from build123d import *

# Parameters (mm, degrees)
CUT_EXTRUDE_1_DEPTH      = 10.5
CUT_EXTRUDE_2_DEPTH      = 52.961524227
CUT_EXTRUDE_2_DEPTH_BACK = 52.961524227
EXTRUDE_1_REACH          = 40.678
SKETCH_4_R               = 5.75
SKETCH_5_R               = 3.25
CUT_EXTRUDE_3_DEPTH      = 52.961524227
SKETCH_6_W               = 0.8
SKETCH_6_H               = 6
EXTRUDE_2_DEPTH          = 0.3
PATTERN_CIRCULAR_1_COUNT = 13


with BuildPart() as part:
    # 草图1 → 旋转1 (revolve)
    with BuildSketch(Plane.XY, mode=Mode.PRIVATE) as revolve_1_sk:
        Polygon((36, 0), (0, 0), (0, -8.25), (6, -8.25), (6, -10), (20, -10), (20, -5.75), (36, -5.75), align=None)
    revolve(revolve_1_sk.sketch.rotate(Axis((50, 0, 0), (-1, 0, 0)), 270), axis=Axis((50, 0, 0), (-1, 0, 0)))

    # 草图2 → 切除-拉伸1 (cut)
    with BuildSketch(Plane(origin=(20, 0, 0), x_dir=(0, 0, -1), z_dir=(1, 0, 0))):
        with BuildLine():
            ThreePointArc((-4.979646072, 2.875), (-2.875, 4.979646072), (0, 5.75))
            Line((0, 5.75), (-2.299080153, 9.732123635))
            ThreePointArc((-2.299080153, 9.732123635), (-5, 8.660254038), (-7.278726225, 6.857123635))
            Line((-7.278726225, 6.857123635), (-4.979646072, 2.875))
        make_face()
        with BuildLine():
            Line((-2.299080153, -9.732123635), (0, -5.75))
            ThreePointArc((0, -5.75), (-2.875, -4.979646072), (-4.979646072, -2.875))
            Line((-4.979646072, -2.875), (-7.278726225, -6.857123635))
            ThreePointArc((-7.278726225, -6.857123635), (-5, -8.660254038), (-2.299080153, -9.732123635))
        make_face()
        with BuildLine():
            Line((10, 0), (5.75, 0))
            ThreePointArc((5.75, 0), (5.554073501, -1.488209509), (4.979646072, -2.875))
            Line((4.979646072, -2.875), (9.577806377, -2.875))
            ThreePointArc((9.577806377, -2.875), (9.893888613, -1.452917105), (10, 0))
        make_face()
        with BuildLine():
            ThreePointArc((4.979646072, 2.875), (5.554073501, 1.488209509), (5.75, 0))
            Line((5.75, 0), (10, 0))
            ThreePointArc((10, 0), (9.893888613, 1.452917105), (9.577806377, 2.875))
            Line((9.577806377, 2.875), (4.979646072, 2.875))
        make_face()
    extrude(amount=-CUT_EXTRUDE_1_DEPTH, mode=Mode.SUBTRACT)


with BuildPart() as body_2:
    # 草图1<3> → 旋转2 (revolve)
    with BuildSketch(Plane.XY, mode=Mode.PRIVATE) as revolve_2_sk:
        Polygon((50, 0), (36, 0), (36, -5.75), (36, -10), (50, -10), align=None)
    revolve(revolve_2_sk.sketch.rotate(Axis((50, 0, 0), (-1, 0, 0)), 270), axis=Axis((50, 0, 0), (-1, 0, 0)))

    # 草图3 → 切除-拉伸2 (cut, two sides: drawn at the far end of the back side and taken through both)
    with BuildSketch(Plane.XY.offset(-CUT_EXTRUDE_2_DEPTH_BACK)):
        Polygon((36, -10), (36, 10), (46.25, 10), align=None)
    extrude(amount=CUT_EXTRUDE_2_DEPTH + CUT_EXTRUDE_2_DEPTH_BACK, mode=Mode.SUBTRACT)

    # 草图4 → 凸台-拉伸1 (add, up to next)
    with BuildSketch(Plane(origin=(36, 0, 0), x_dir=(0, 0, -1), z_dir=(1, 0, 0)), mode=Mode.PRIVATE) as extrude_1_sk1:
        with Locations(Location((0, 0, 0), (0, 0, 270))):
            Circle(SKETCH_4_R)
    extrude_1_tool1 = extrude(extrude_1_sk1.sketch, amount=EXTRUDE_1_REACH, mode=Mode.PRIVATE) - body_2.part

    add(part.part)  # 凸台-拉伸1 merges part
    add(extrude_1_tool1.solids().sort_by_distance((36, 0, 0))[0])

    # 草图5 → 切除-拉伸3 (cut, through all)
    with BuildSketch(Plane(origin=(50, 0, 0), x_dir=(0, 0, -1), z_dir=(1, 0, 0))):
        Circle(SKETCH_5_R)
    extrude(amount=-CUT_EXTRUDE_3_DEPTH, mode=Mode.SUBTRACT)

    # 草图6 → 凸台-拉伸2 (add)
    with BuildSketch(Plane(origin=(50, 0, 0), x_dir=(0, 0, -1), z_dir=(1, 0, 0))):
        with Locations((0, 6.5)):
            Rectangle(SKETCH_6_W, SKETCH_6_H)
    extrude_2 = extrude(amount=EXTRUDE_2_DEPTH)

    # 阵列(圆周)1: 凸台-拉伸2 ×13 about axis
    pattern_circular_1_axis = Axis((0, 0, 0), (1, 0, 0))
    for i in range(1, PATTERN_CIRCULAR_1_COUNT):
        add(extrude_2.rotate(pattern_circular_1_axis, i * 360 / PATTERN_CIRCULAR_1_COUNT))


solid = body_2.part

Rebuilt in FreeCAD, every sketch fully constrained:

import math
import FreeCAD as App
import Part
import Sketcher
Q = App.Units.Quantity


def add_polygon(sketch, points):
    """Adds a closed chain of lines whose ends are joined by coincident constraints."""
    first, n = sketch.GeometryCount, len(points)
    for a, b in zip(points, points[1:] + points[:1]):
        sketch.addGeometry(Part.LineSegment(App.Vector(*a, 0), App.Vector(*b, 0)), False)
    for i in range(n):
        sketch.addConstraint(Sketcher.Constraint("Coincident", first + i, 2, first + (i + 1) % n, 1))

doc = App.newDocument("Part")
body = doc.addObject("PartDesign::Body", "Body")

# Sketch on XY plane
sketch1 = body.newObject("Sketcher::SketchObject", "Sketch")
sketch1.AttachmentSupport = (doc.getObject("XY_Plane"), [""])
sketch1.MapMode = "FlatFace"
add_polygon(sketch1, [(36, 0), (0, 0), (0, -8.2), (6, -8.2), (6, -10), (20, -10), (20, -5.8), (36, -5.8)])  # lines 0-7
sketch1.addConstraint([
    Sketcher.Constraint("Horizontal", 0),
    Sketcher.Constraint("Vertical", 1),
    Sketcher.Constraint("Horizontal", 2),
    Sketcher.Constraint("Vertical", 3),
    Sketcher.Constraint("Horizontal", 4),
    Sketcher.Constraint("Vertical", 5),
    Sketcher.Constraint("Horizontal", 6),
    Sketcher.Constraint("Vertical", 7),
    Sketcher.Constraint("Coincident", 0, 2, -1, 1),
    Sketcher.Constraint("DistanceX", 0, 2, 0, 1, 36.0),
    Sketcher.Constraint("DistanceX", 2, 1, 2, 2, 6.0),
    Sketcher.Constraint("DistanceX", 4, 1, 4, 2, 14.0),
    Sketcher.Constraint("DistanceY", 3, 2, -1, 1, 10.0),
    Sketcher.Constraint("DistanceY", 1, 2, 1, 1, 8.25),
    Sketcher.Constraint("DistanceY", 5, 1, 5, 2, 4.25),
])
revolution = body.newObject("PartDesign::Revolution", "Revolution")
revolution.Profile = sketch1
revolution.ReferenceAxis = (sketch1, ["H_Axis"])
revolution.Angle = 360

# Sketch on YZ plane
sketch2 = body.newObject("Sketcher::SketchObject", "Sketch001")
sketch2.AttachmentSupport = (doc.getObject("YZ_Plane"), [""])
sketch2.MapMode = "FlatFace"
sketch2.AttachmentOffset = App.Placement(App.Vector(0, 0, 20), App.Rotation())
sketch2.addGeometry([
    Part.ArcOfCircle(Part.Circle(App.Vector(0, 0, 0), App.Vector(0, 0, 1), 5.7), math.radians(0), math.radians(60)),  # 0
    Part.LineSegment(App.Vector(5.8, 0, 0), App.Vector(9.7, 2.3, 0)),  # 1
    Part.ArcOfCircle(Part.Circle(App.Vector(0, 0, 0), App.Vector(0, 0, 1), 10), math.radians(13), math.radians(47)),  # 2
    Part.LineSegment(App.Vector(6.9, 7.3, 0), App.Vector(2.9, 5, 0)),  # 3
    Part.LineSegment(App.Vector(-9.7, 2.3, 0), App.Vector(-5.8, 0, 0)),  # 4
    Part.ArcOfCircle(Part.Circle(App.Vector(0, 0, 0), App.Vector(0, 0, 1), 5.7), math.radians(120), math.radians(180)),  # 5
    Part.LineSegment(App.Vector(-2.9, 5, 0), App.Vector(-6.9, 7.3, 0)),  # 6
    Part.ArcOfCircle(Part.Circle(App.Vector(0, 0, 0), App.Vector(0, 0, 1), 10), math.radians(133), math.radians(167)),  # 7
    Part.ArcOfCircle(Part.Circle(App.Vector(0, 0, 0), App.Vector(0, 0, 1), 5.8), math.radians(-120), math.radians(-90)),  # 8
    Part.LineSegment(App.Vector(-2.9, -5, 0), App.Vector(-2.9, -9.6, 0)),  # 9
    Part.ArcOfCircle(Part.Circle(App.Vector(0, 0, 0), App.Vector(0, 0, 1), 10), math.radians(-106.71), math.radians(-90)),  # 10
    Part.ArcOfCircle(Part.Circle(App.Vector(0, 0, 0), App.Vector(0, 0, 1), 10), math.radians(-90), math.radians(-73.29)),  # 11
    Part.LineSegment(App.Vector(2.9, -9.6, 0), App.Vector(2.9, -5, 0)),  # 12
    Part.ArcOfCircle(Part.Circle(App.Vector(0, 0, 0), App.Vector(0, 0, 1), 5.8), math.radians(-90), math.radians(-60)),  # 13
], False)
sketch2.addConstraint([
    Sketcher.Constraint("Coincident", 0, 1, 1, 1),
    Sketcher.Constraint("Coincident", 1, 2, 2, 1),
    Sketcher.Constraint("Coincident", 2, 2, 3, 1),
    Sketcher.Constraint("Coincident", 3, 2, 0, 2),
    Sketcher.Constraint("Coincident", 4, 2, 5, 2),
    Sketcher.Constraint("Coincident", 5, 1, 6, 1),
    Sketcher.Constraint("Coincident", 6, 2, 7, 1),
    Sketcher.Constraint("Coincident", 7, 2, 4, 1),
    Sketcher.Constraint("Coincident", 8, 1, 9, 1),
    Sketcher.Constraint("Coincident", 9, 2, 10, 1),
    Sketcher.Constraint("Tangent", 10, 2, 11, 1),
    Sketcher.Constraint("Coincident", 11, 2, 12, 1),
    Sketcher.Constraint("Coincident", 12, 2, 13, 2),
    Sketcher.Constraint("Tangent", 13, 1, 8, 2),
    Sketcher.Constraint("Vertical", 9),
    Sketcher.Constraint("Vertical", 12),
    Sketcher.Constraint("Coincident", 0, 3, -1, 1),
    Sketcher.Constraint("Coincident", 2, 3, -1, 1),
    Sketcher.Constraint("Coincident", 5, 3, -1, 1),
    Sketcher.Constraint("Coincident", 7, 3, -1, 1),
    Sketcher.Constraint("Coincident", 8, 3, -1, 1),
    Sketcher.Constraint("Coincident", 10, 3, -1, 1),
    Sketcher.Constraint("Equal", 0, 5),
    Sketcher.Constraint("Equal", 2, 7),
    Sketcher.Constraint("Equal", 5, 8),
    Sketcher.Constraint("Equal", 7, 10),
    Sketcher.Constraint("Equal", 10, 11),
    Sketcher.Constraint("Equal", 8, 13),
    Sketcher.Constraint("PointOnObject", 0, 1, -1),
    Sketcher.Constraint("PointOnObject", 4, 2, -1),
    Sketcher.Constraint("PointOnObject", 10, 2, -2),
    Sketcher.Constraint("PointOnObject", 13, 1, -2),
    Sketcher.Constraint("Parallel", 1, 3),
    Sketcher.Constraint("Parallel", 4, 6),
    Sketcher.Constraint("Horizontal", 3, 2, 5, 1),
    Sketcher.Constraint("Horizontal", 2, 2, 6, 2),
    Sketcher.Constraint("Horizontal", 9, 2, 11, 2),
    Sketcher.Constraint("Vertical", 5, 1, 8, 1),
    Sketcher.Constraint("Equal", 1, 3),
    Sketcher.Constraint("Radius", 2, 10.0),
    Sketcher.Constraint("Angle", 1, Q("30 deg")),
    Sketcher.Constraint("Radius", 0, 5.75),
])
pocket1 = body.newObject("PartDesign::Pocket", "Pocket")
pocket1.Profile = sketch2
pocket1.Length = 10.5
body2 = doc.addObject("PartDesign::Body", "Body001")
body2.AllowCompound = True

# Sketch on XY plane
sketch3 = body2.newObject("Sketcher::SketchObject", "Sketch002")
sketch3.AttachmentSupport = (doc.getObject("XY_Plane001"), [""])
sketch3.MapMode = "FlatFace"
add_polygon(sketch3, [(50, 0), (36, 0), (36, -10), (50, -10)])  # lines 0-3
sketch3.addConstraint([
    Sketcher.Constraint("Horizontal", 0),
    Sketcher.Constraint("Vertical", 1),
    Sketcher.Constraint("Horizontal", 2),
    Sketcher.Constraint("Vertical", 3),
    Sketcher.Constraint("PointOnObject", 0, 2, -1),
    Sketcher.Constraint("DistanceX", 0, 2, 0, 1, 14.0),
    Sketcher.Constraint("DistanceY", 1, 2, 1, 1, 10.0),
    Sketcher.Constraint("DistanceX", -1, 1, 0, 2, 36.0),
])
revolution2 = body2.newObject("PartDesign::Revolution", "Revolution001")
revolution2.Profile = sketch3
revolution2.ReferenceAxis = (sketch3, ["H_Axis"])
revolution2.Angle = 360

# Sketch on XY plane
sketch4 = body2.newObject("Sketcher::SketchObject", "Sketch003")
sketch4.AttachmentSupport = (doc.getObject("XY_Plane001"), [""])
sketch4.MapMode = "FlatFace"
add_polygon(sketch4, [(36, 10), (36, -10), (46, 10)])  # lines 0-2
sketch4.addConstraint([
    Sketcher.Constraint("Vertical", 0),
    Sketcher.Constraint("Horizontal", 2),
    Sketcher.Constraint("DistanceY", 0, 2, 0, 1, 20.0),
    Sketcher.Constraint("DistanceX", -1, 1, 0, 2, 36.0),
    Sketcher.Constraint("DistanceY", 0, 2, -1, 1, 10.0),
    Sketcher.Constraint("DistanceX", 2, 2, 2, 1, 10.25),
])
pocket2 = body2.newObject("PartDesign::Pocket", "Pocket001")
pocket2.Profile = sketch4
pocket2.Type = "ThroughAll"
pocket2.Midplane = True
doc.recompute()

boolean = body2.newObject("PartDesign::Boolean", "Boolean")
boolean.Type = "Fuse"
boolean.addObjects([body])

# Sketch on YZ plane
sketch5 = body2.newObject("Sketcher::SketchObject", "Sketch004")
sketch5.AttachmentSupport = (doc.getObject("YZ_Plane001"), [""])
sketch5.MapMode = "FlatFace"
sketch5.AttachmentOffset = App.Placement(App.Vector(0, 0, 36), App.Rotation())
sketch5.addGeometry(Part.Circle(App.Vector(0, 0, 0), App.Vector(0, 0, 1), 6), False)
sketch5.addConstraint([
    Sketcher.Constraint("Coincident", 0, 3, -1, 1),
    Sketcher.Constraint("Diameter", 0, 11.5),
])
pad1 = body2.newObject("PartDesign::Pad", "Pad")
pad1.Profile = sketch5
pad1.Type = "UpToFirst"

# Sketch on YZ plane
sketch6 = body2.newObject("Sketcher::SketchObject", "Sketch005")
sketch6.AttachmentSupport = (doc.getObject("YZ_Plane001"), [""])
sketch6.MapMode = "FlatFace"
sketch6.AttachmentOffset = App.Placement(App.Vector(0, 0, 50), App.Rotation())
sketch6.addGeometry(Part.Circle(App.Vector(0, 0, 0), App.Vector(0, 0, 1), 3.2), False)
sketch6.addConstraint([
    Sketcher.Constraint("Coincident", 0, 3, -1, 1),
    Sketcher.Constraint("Diameter", 0, 6.5),
])
pocket3 = body2.newObject("PartDesign::Pocket", "Pocket002")
pocket3.Profile = sketch6
pocket3.Type = "ThroughAll"

# Sketch on YZ plane
sketch7 = body2.newObject("Sketcher::SketchObject", "Sketch006")
sketch7.AttachmentSupport = (doc.getObject("YZ_Plane001"), [""])
sketch7.MapMode = "FlatFace"
sketch7.AttachmentOffset = App.Placement(App.Vector(0, 0, 50), App.Rotation())
add_polygon(sketch7, [(9.5, 0.4), (3.5, 0.4), (3.5, -0.4), (9.5, -0.4)])  # lines 0-3
sketch7.addConstraint([
    Sketcher.Constraint("Horizontal", 0),
    Sketcher.Constraint("Vertical", 1),
    Sketcher.Constraint("Horizontal", 2),
    Sketcher.Constraint("Vertical", 3),
    Sketcher.Constraint("DistanceX", 0, 2, 0, 1, 6.0),
    Sketcher.Constraint("DistanceY", 1, 2, 1, 1, 0.8),
    Sketcher.Constraint("DistanceX", -1, 1, 0, 2, 3.5),
    Sketcher.Constraint("DistanceY", -1, 1, 0, 2, 0.4),
])
pad2 = body2.newObject("PartDesign::Pad", "Pad001")
pad2.Profile = sketch7
pad2.Length = 0.3
doc.recompute()

polarpattern = body2.newObject("PartDesign::PolarPattern", "PolarPattern")
polarpattern.Originals = [pad2]
polarpattern.Axis = (doc.getObject("X_Axis001"), [""])
polarpattern.Angle = 360
polarpattern.Occurrences = 13
body2.Tip = polarpattern

doc.recompute()
